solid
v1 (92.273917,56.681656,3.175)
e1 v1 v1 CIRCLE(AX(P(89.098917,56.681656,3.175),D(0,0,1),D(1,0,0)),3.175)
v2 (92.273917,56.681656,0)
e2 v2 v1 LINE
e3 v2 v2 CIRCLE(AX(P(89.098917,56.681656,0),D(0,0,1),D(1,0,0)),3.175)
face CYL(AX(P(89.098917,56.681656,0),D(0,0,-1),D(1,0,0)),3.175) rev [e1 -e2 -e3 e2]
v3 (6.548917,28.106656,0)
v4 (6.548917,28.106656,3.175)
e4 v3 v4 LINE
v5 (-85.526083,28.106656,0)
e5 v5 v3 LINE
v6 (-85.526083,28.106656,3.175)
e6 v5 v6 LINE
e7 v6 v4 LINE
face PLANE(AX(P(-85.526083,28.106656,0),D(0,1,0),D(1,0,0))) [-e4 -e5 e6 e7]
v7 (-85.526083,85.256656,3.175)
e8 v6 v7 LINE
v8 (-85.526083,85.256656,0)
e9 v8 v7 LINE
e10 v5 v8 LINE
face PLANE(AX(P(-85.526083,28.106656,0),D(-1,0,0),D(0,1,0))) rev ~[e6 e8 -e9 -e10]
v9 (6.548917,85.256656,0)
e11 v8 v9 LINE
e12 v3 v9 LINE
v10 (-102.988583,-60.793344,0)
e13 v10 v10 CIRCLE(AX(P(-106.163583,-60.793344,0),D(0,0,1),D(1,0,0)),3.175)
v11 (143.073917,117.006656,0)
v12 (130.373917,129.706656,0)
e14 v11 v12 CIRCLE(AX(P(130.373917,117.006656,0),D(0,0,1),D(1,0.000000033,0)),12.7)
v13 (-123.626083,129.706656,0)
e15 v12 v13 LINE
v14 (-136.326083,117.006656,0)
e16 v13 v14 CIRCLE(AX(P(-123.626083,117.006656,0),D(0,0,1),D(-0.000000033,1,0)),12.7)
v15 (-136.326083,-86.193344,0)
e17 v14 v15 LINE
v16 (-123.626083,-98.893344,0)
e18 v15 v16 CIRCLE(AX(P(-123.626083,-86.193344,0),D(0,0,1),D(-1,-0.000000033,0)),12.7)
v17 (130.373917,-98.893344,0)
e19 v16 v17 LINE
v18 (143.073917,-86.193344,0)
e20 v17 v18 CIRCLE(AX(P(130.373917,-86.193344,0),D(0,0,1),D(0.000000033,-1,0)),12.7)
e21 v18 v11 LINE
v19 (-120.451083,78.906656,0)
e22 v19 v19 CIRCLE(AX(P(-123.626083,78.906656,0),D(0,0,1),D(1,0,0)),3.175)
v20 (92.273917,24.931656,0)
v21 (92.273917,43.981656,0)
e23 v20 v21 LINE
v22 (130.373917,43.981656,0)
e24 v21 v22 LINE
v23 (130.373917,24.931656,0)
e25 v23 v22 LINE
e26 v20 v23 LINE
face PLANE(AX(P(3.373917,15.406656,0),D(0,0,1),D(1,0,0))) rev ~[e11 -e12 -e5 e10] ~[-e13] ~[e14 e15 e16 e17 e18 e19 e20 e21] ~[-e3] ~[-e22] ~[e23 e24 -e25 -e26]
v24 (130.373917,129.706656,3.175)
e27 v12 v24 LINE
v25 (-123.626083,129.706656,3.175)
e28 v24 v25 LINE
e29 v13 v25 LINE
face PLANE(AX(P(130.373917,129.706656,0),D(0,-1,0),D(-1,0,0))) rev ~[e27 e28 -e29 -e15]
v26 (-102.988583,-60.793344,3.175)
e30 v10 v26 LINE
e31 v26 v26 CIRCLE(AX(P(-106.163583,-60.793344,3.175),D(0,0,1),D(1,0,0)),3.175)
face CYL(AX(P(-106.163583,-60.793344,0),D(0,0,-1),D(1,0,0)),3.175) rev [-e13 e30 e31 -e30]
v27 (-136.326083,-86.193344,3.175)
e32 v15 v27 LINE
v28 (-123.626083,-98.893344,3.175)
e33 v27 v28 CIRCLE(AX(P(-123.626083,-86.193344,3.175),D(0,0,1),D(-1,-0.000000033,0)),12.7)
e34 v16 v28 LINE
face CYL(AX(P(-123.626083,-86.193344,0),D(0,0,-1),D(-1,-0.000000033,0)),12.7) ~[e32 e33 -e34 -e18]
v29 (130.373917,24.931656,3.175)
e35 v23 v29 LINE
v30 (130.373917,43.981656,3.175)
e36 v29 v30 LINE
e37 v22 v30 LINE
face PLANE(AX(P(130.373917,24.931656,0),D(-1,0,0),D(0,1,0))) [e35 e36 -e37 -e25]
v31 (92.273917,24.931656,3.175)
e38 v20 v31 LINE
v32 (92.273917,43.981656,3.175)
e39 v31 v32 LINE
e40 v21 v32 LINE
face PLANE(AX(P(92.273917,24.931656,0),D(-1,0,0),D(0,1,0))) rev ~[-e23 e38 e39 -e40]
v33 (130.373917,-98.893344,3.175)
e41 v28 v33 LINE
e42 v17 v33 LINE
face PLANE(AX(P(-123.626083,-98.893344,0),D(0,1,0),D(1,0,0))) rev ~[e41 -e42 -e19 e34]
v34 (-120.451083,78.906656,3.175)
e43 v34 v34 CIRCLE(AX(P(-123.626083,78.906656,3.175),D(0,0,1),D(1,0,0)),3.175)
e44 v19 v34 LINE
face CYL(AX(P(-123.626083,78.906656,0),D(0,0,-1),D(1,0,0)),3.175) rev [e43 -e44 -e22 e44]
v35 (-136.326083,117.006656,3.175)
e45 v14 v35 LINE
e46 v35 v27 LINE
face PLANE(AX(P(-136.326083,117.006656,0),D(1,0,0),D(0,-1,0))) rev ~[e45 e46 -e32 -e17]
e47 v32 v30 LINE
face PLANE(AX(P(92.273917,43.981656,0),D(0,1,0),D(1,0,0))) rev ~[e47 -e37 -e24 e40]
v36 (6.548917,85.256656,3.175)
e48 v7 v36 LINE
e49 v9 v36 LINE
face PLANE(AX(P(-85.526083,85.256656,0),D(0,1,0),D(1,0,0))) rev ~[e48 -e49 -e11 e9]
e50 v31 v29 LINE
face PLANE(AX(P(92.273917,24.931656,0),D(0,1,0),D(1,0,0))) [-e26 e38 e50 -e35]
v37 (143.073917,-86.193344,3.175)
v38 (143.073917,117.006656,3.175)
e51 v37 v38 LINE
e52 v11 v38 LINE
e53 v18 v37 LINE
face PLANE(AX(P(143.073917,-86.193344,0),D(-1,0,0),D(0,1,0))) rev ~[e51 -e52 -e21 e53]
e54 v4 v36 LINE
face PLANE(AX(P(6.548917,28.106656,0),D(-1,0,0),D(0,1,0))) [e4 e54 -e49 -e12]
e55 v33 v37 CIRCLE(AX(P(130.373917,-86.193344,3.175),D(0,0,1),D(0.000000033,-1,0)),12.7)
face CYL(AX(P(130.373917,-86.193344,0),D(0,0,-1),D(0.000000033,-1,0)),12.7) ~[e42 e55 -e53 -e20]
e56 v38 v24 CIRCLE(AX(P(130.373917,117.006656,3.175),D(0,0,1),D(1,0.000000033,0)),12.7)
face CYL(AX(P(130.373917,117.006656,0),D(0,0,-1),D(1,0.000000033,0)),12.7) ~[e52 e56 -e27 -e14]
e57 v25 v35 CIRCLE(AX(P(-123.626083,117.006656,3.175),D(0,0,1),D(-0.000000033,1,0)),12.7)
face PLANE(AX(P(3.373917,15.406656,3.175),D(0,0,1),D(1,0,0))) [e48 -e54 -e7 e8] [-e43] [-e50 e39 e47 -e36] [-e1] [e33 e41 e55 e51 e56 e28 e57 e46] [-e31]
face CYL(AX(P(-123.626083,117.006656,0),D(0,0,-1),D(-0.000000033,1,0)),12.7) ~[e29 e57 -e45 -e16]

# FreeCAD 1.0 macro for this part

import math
import FreeCAD as App
import Part
import Sketcher

V = App.Vector
Q = App.Units.Quantity


def add_polygon(sketch, points):
    """Adds a closed chain of lines whose ends are joined by coincident constraints."""
    first, n = sketch.GeometryCount, len(points)
    for a, b in zip(points, points[1:] + points[:1]):
        sketch.addGeometry(Part.LineSegment(App.Vector(*a, 0), App.Vector(*b, 0)), False)
    for i in range(n):
        sketch.addConstraint(Sketcher.Constraint("Coincident", first + i, 2, first + (i + 1) % n, 1))

doc = App.newDocument("Part")
params = doc.addObject("Spreadsheet::Sheet", "Params")
for row, (alias, value) in enumerate([
    ("sketch1_radius", "0.5 in"),
    ("sketch1_diameter", "0.25 in"),
    ("sketch1_width", "10 in"),
    ("sketch1_height", "8 in"),
    ("sketch1_width2", "1.5 in"),
    ("pad1_length", "0.125 in"),
], start=1):
    params.set(f"A{row}", alias)
    params.set(f"B{row}", "=" + value)
    params.setAlias(f"B{row}", alias)

body = doc.addObject("PartDesign::Body", "Body")

# Sketch on XY plane
sketch1 = body.newObject("Sketcher::SketchObject", "Sketch")
sketch1.AttachmentSupport = (doc.getObject("XY_Plane"), [""])
sketch1.MapMode = "FlatFace"
sketch1.addGeometry(Part.LineSegment(V(130.373917, 129.706656, 0), V(-123.626083, 129.706656, 0)), False)  # 0
sketch1.addGeometry(Part.ArcOfCircle(Part.Circle(V(-123.626083, 117.006656, 0), V(0, 0, 1), 12.7), math.radians(90.000002), math.radians(179.999998)), False)  # 1
sketch1.addGeometry(Part.LineSegment(V(-136.326083, 117.006656, 0), V(-136.326083, -86.193344, 0)), False)  # 2
sketch1.addGeometry(Part.ArcOfCircle(Part.Circle(V(-123.626083, -86.193344, 0), V(0, 0, 1), 12.7), math.radians(-179.999998), math.radians(-90.000002)), False)  # 3
sketch1.addGeometry(Part.LineSegment(V(-123.626083, -98.893344, 0), V(130.373917, -98.893344, 0)), False)  # 4
sketch1.addGeometry(Part.ArcOfCircle(Part.Circle(V(130.373917, -86.193344, 0), V(0, 0, 1), 12.7), math.radians(-89.999998), math.radians(-0.000002)), False)  # 5
sketch1.addGeometry(Part.LineSegment(V(143.073917, -86.193344, 0), V(143.073917, 117.006656, 0)), False)  # 6
sketch1.addGeometry(Part.ArcOfCircle(Part.Circle(V(130.373917, 117.006656, 0), V(0, 0, 1), 12.7), math.radians(0.000002), math.radians(89.999998)), False)  # 7
sketch1.addGeometry(Part.Circle(V(-106.163583, -60.793344, 0), V(0, 0, 1), 3.175), False)  # 8
sketch1.addGeometry(Part.Circle(V(-123.626083, 78.906656, 0), V(0, 0, 1), 3.175), False)  # 9
add_polygon(sketch1, [(6.548917, 28.106656), (-85.526083, 28.106656), (-85.526083, 85.256656), (6.548917, 85.256656)])  # lines 10-13
add_polygon(sketch1, [(130.373917, 24.931656), (92.273917, 24.931656), (92.273917, 43.981656), (130.373917, 43.981656)])  # lines 14-17
sketch1.addGeometry(Part.Circle(V(89.098917, 56.681656, 0), V(0, 0, 1), 3.175), False)  # 18
sketch1.addConstraint([
    Sketcher.Constraint("Tangent", 0, 2, 1, 1),
    Sketcher.Constraint("Tangent", 1, 2, 2, 1),
    Sketcher.Constraint("Tangent", 2, 2, 3, 1),
    Sketcher.Constraint("Tangent", 3, 2, 4, 1),
    Sketcher.Constraint("Tangent", 4, 2, 5, 1),
    Sketcher.Constraint("Tangent", 5, 2, 6, 1),
    Sketcher.Constraint("Tangent", 6, 2, 7, 1),
    Sketcher.Constraint("Tangent", 7, 2, 0, 1),
    Sketcher.Constraint("Horizontal", 0),
    Sketcher.Constraint("Vertical", 2),
    Sketcher.Constraint("Horizontal", 4),
    Sketcher.Constraint("Vertical", 6),
    Sketcher.Constraint("Horizontal", 10),
    Sketcher.Constraint("Vertical", 11),
    Sketcher.Constraint("Horizontal", 12),
    Sketcher.Constraint("Vertical", 13),
    Sketcher.Constraint("Horizontal", 14),
    Sketcher.Constraint("Vertical", 15),
    Sketcher.Constraint("Horizontal", 16),
    Sketcher.Constraint("Vertical", 17),
    Sketcher.Constraint("Equal", 1, 3),
    Sketcher.Constraint("Equal", 3, 5),
    Sketcher.Constraint("Equal", 5, 7),
    Sketcher.Constraint("Equal", 8, 9),
    Sketcher.Constraint("Equal", 9, 18),
    Sketcher.Constraint("Vertical", 3, 3, 9, 3),
    Sketcher.Constraint("Vertical", 7, 2, 16, 2),
    Sketcher.Constraint("Radius", 1, Q("0.5 in")),
    Sketcher.Constraint("Diameter", 8, Q("0.25 in")),
    Sketcher.Constraint("DistanceX", 0, 2, 0, 1, Q("10 in")),
    Sketcher.Constraint("DistanceY", 2, 2, 2, 1, Q("8 in")),
    Sketcher.Constraint("DistanceX", 14, 2, 14, 1, Q("1.5 in")),
    Sketcher.Constraint("DistanceY", 3, 3, 8, 3, Q("1 in")),
    Sketcher.Constraint("DistanceY", 9, 3, 0, 2, Q("2 in")),
    Sketcher.Constraint("DistanceY", 10, 2, 9, 3, Q("2 in")),
    Sketcher.Constraint("DistanceX", 1, 2, 10, 2, Q("2 in")),
    Sketcher.Constraint("DistanceY", 11, 1, 11, 2, Q("2.25 in")),
    Sketcher.Constraint("DistanceY", 15, 1, 15, 2, Q("0.75 in")),
    Sketcher.Constraint("DistanceY", 15, 2, 18, 3, Q("0.5 in")),
    Sketcher.Constraint("DistanceX", 10, 2, 10, 1, Q("3.625 in")),
    Sketcher.Constraint("DistanceX", 12, 2, 18, 3, Q("3.25 in")),
    Sketcher.Constraint("DistanceX", 3, 3, 8, 3, Q("0.6875 in")),
    Sketcher.Constraint("DistanceY", 18, 3, 7, 3, Q("2.375 in")),
    Sketcher.Constraint("DistanceX", 1, 3, -1, 1, Q("123.626083 mm")),
    Sketcher.Constraint("DistanceY", -1, 1, 1, 3, Q("117.006656 mm")),
])
sketch1.setExpression("Constraints[35]", "Params.sketch1_radius")
sketch1.setExpression("Constraints[36]", "Params.sketch1_diameter")
sketch1.setExpression("Constraints[37]", "Params.sketch1_width")
sketch1.setExpression("Constraints[38]", "Params.sketch1_height")
sketch1.setExpression("Constraints[39]", "Params.sketch1_width2")
pad1 = body.newObject("PartDesign::Pad", "Pad")
pad1.Profile = sketch1
pad1.setExpression("Length", "Params.pad1_length")

doc.recompute()
